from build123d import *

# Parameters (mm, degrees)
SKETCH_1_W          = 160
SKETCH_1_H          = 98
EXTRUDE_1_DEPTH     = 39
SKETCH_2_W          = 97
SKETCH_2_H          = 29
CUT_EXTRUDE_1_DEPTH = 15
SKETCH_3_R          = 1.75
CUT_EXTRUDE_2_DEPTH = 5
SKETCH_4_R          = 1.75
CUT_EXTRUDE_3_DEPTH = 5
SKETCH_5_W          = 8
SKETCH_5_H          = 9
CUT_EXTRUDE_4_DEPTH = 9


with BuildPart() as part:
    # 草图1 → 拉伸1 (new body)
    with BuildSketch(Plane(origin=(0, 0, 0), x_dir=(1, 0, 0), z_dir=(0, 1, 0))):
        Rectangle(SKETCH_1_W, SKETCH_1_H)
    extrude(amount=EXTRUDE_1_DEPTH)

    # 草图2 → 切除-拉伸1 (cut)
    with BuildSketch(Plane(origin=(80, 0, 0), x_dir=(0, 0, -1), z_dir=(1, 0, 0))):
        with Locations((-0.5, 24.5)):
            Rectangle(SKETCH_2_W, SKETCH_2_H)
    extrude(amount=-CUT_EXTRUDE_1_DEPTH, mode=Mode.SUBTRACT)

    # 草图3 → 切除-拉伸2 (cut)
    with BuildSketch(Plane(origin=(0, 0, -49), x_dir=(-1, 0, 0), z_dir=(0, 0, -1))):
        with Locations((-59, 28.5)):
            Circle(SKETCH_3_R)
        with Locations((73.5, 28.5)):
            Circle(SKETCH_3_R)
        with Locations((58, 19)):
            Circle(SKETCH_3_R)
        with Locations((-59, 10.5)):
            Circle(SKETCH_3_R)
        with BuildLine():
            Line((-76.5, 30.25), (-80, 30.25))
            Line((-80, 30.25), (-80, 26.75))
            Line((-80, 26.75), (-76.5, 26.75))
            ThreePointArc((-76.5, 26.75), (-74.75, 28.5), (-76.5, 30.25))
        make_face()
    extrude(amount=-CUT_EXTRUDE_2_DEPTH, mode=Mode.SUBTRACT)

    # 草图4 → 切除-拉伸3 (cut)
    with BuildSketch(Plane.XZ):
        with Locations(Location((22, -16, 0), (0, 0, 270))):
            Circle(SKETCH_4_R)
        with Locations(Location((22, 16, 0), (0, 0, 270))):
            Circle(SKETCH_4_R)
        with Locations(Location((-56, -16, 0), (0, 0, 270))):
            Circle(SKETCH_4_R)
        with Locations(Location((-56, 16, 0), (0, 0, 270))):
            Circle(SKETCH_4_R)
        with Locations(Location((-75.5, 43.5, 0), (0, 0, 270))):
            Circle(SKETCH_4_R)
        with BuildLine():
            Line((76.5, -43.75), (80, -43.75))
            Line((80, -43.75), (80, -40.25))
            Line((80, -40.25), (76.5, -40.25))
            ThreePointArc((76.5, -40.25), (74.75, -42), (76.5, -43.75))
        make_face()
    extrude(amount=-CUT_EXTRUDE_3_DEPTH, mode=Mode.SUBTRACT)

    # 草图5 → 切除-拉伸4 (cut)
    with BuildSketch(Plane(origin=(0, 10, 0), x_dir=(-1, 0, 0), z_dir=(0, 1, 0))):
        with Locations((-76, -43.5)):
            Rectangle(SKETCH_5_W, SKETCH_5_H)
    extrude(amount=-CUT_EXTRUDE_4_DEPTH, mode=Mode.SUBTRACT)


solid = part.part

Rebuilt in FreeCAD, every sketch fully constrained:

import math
import FreeCAD as App
import Part
import Sketcher
from FreeCAD import Vector

doc = App.newDocument("Part")
body = doc.addObject("PartDesign::Body", "Body")

sketch1 = doc.addObject("Sketcher::SketchObject", "Sketch")
body.addObject(sketch1)
sketch1.AttachmentSupport = (doc.XZ_Plane, [""])
sketch1.MapMode = "FlatFace"
sketch1.addGeometry([
    Part.LineSegment(Vector(-80, -49, 0), Vector(-80, 49, 0)),
    Part.LineSegment(Vector(-80, 49, 0), Vector(80, 49, 0)),
    Part.LineSegment(Vector(80, 49, 0), Vector(80, -49, 0)),
    Part.LineSegment(Vector(80, -49, 0), Vector(-80, -49, 0)),
], False)
sketch1.addConstraint([
    Sketcher.Constraint("Coincident", 0, 2, 1, 1),
    Sketcher.Constraint("Coincident", 1, 2, 2, 1),
    Sketcher.Constraint("Coincident", 2, 2, 3, 1),
    Sketcher.Constraint("Coincident", 3, 2, 0, 1),
    Sketcher.Constraint("Vertical", 0),
    Sketcher.Constraint("Horizontal", 1),
    Sketcher.Constraint("Vertical", 2),
    Sketcher.Constraint("Horizontal", 3),
    Sketcher.Constraint("Symmetric", 0, 2, 2, 2, -1, 1),
    Sketcher.Constraint("DistanceX", 1, 1, 1, 2, 160.0),
    Sketcher.Constraint("DistanceY", 0, 1, 0, 2, 98.0),
])
pad1 = doc.addObject("PartDesign::Pad", "Pad")
body.addObject(pad1)
pad1.Profile = sketch1
pad1.Length = 39
pad1.Reversed = True

sketch2 = doc.addObject("Sketcher::SketchObject", "Sketch001")
body.addObject(sketch2)
sketch2.AttachmentSupport = (doc.YZ_Plane, [""])
sketch2.MapMode = "FlatFace"
sketch2.AttachmentOffset = App.Placement(Vector(0, 0, 80), App.Rotation())
sketch2.addGeometry([
    Part.LineSegment(Vector(39, 49, 0), Vector(10, 49, 0)),
    Part.LineSegment(Vector(10, 49, 0), Vector(10, -48, 0)),
    Part.LineSegment(Vector(10, -48, 0), Vector(39, -48, 0)),
    Part.LineSegment(Vector(39, -48, 0), Vector(39, 49, 0)),
], False)
sketch2.addConstraint([
    Sketcher.Constraint("Coincident", 0, 2, 1, 1),
    Sketcher.Constraint("Coincident", 1, 2, 2, 1),
    Sketcher.Constraint("Coincident", 2, 2, 3, 1),
    Sketcher.Constraint("Coincident", 3, 2, 0, 1),
    Sketcher.Constraint("Horizontal", 0),
    Sketcher.Constraint("Vertical", 1),
    Sketcher.Constraint("Horizontal", 2),
    Sketcher.Constraint("Vertical", 3),
    Sketcher.Constraint("DistanceX", 0, 2, 0, 1, 29.0),
    Sketcher.Constraint("DistanceY", 1, 2, 1, 1, 97.0),
    Sketcher.Constraint("DistanceX", -1, 1, 0, 2, 10.0),
    Sketcher.Constraint("DistanceY", -1, 1, 0, 2, 49.0),
])
pocket1 = doc.addObject("PartDesign::Pocket", "Pocket")
body.addObject(pocket1)
pocket1.Profile = sketch2
pocket1.Length = 15

sketch3 = doc.addObject("Sketcher::SketchObject", "Sketch002")
body.addObject(sketch3)
sketch3.AttachmentSupport = (doc.XY_Plane, [""])
sketch3.MapMode = "FlatFace"
sketch3.AttachmentOffset = App.Placement(Vector(0, 0, -49), App.Rotation())
sketch3.addGeometry([
    Part.Circle(Vector(59, 28.5, 0), Vector(0, 0, 1), 1.8),
    Part.Circle(Vector(-73.5, 28.5, 0), Vector(0, 0, 1), 1.8),
    Part.Circle(Vector(-58, 19, 0), Vector(0, 0, 1), 1.8),
    Part.Circle(Vector(59, 10.5, 0), Vector(0, 0, 1), 1.8),
    Part.LineSegment(Vector(76.5, 30.2, 0), Vector(80, 30.2, 0)),
    Part.LineSegment(Vector(80, 30.2, 0), Vector(80, 26.8, 0)),
    Part.LineSegment(Vector(80, 26.8, 0), Vector(76.5, 26.8, 0)),
    Part.ArcOfCircle(Part.Circle(Vector(76.5, 28.5, 0), Vector(0, 0, 1), 1.8), math.radians(90), math.radians(270)),
], False)
sketch3.addConstraint([
    Sketcher.Constraint("Coincident", 4, 2, 5, 1),
    Sketcher.Constraint("Coincident", 5, 2, 6, 1),
    Sketcher.Constraint("Tangent", 6, 2, 7, 2),
    Sketcher.Constraint("Tangent", 7, 1, 4, 1),
    Sketcher.Constraint("Horizontal", 4),
    Sketcher.Constraint("Vertical", 5),
    Sketcher.Constraint("Horizontal", 6),
    Sketcher.Constraint("Equal", 0, 1),
    Sketcher.Constraint("Equal", 1, 2),
    Sketcher.Constraint("Equal", 2, 3),
    Sketcher.Constraint("Equal", 3, 7),
    Sketcher.Constraint("Horizontal", 0, 3, 1, 3),
    Sketcher.Constraint("Horizontal", 1, 3, 7, 3),
    Sketcher.Constraint("Vertical", 0, 3, 3, 3),
    Sketcher.Constraint("Equal", 6, 5),
    Sketcher.Constraint("Diameter", 0, 3.5),
    Sketcher.Constraint("DistanceX", -1, 1, 0, 3, 59.0),
    Sketcher.Constraint("DistanceX", 2, 3, -1, 1, 58.0),
    Sketcher.Constraint("DistanceY", -1, 1, 2, 3, 19.0),
    Sketcher.Constraint("DistanceX", -1, 1, 4, 2, 80.0),
    Sketcher.Constraint("DistanceY", 3, 3, 0, 3, 18.0),
    Sketcher.Constraint("DistanceX", 1, 3, 7, 3, 150.0),
    Sketcher.Constraint("DistanceY", -1, 1, 0, 3, 28.5),
])
pocket2 = doc.addObject("PartDesign::Pocket", "Pocket001")
body.addObject(pocket2)
pocket2.Profile = sketch3
pocket2.Length = 5
pocket2.Reversed = True

sketch4 = doc.addObject("Sketcher::SketchObject", "Sketch003")
body.addObject(sketch4)
sketch4.AttachmentSupport = (doc.XZ_Plane, [""])
sketch4.MapMode = "FlatFace"
sketch4.addGeometry([
    Part.Circle(Vector(22, -16, 0), Vector(0, 0, 1), 1.8),
    Part.Circle(Vector(22, 16, 0), Vector(0, 0, 1), 1.8),
    Part.Circle(Vector(-56, -16, 0), Vector(0, 0, 1), 1.8),
    Part.Circle(Vector(-56, 16, 0), Vector(0, 0, 1), 1.8),
    Part.Circle(Vector(-75.5, 43.5, 0), Vector(0, 0, 1), 1.8),
    Part.LineSegment(Vector(76.5, -43.8, 0), Vector(80, -43.8, 0)),
    Part.LineSegment(Vector(80, -43.8, 0), Vector(80, -40.2, 0)),
    Part.LineSegment(Vector(80, -40.2, 0), Vector(76.5, -40.2, 0)),
    Part.ArcOfCircle(Part.Circle(Vector(76.5, -42, 0), Vector(0, 0, 1), 1.8), math.radians(90), math.radians(270)),
], False)
sketch4.addConstraint([
    Sketcher.Constraint("Coincident", 5, 2, 6, 1),
    Sketcher.Constraint("Coincident", 6, 2, 7, 1),
    Sketcher.Constraint("Tangent", 7, 2, 8, 1),
    Sketcher.Constraint("Tangent", 8, 2, 5, 1),
    Sketcher.Constraint("Horizontal", 5),
    Sketcher.Constraint("Vertical", 6),
    Sketcher.Constraint("Horizontal", 7),
    Sketcher.Constraint("Equal", 0, 1),
    Sketcher.Constraint("Equal", 1, 2),
    Sketcher.Constraint("Equal", 2, 3),
    Sketcher.Constraint("Equal", 3, 4),
    Sketcher.Constraint("Equal", 4, 8),
    Sketcher.Constraint("Symmetric", 0, 3, 1, 3, -1),
    Sketcher.Constraint("Symmetric", 2, 3, 3, 3, -1),
    Sketcher.Constraint("Horizontal", 0, 3, 2, 3),
    Sketcher.Constraint("Equal", 7, 6),
    Sketcher.Constraint("Diameter", 0, 3.5),
    Sketcher.Constraint("DistanceX", -1, 1, 0, 3, 22.0),
    Sketcher.Constraint("DistanceY", 0, 3, -1, 1, 16.0),
    Sketcher.Constraint("DistanceX", 2, 3, -1, 1, 56.0),
    Sketcher.Constraint("DistanceY", 8, 3, -1, 1, 42.0),
    Sketcher.Constraint("DistanceX", -1, 1, 5, 2, 80.0),
    Sketcher.Constraint("DistanceX", 4, 3, 8, 3, 152.0),
    Sketcher.Constraint("DistanceY", -1, 1, 4, 3, 43.5),
])
pocket3 = doc.addObject("PartDesign::Pocket", "Pocket002")
body.addObject(pocket3)
pocket3.Profile = sketch4
pocket3.Length = 5

sketch5 = doc.addObject("Sketcher::SketchObject", "Sketch004")
body.addObject(sketch5)
sketch5.AttachmentSupport = (doc.XZ_Plane, [""])
sketch5.MapMode = "FlatFace"
sketch5.AttachmentOffset = App.Placement(Vector(0, 0, -10), App.Rotation())
sketch5.addGeometry([
    Part.LineSegment(Vector(80, -39, 0), Vector(80, -48, 0)),
    Part.LineSegment(Vector(80, -48, 0), Vector(72, -48, 0)),
    Part.LineSegment(Vector(72, -48, 0), Vector(72, -39, 0)),
    Part.LineSegment(Vector(72, -39, 0), Vector(80, -39, 0)),
], False)
sketch5.addConstraint([
    Sketcher.Constraint("Coincident", 0, 2, 1, 1),
    Sketcher.Constraint("Coincident", 1, 2, 2, 1),
    Sketcher.Constraint("Coincident", 2, 2, 3, 1),
    Sketcher.Constraint("Coincident", 3, 2, 0, 1),
    Sketcher.Constraint("Vertical", 0),
    Sketcher.Constraint("Horizontal", 1),
    Sketcher.Constraint("Vertical", 2),
    Sketcher.Constraint("Horizontal", 3),
    Sketcher.Constraint("DistanceX", 1, 2, 1, 1, 8.0),
    Sketcher.Constraint("DistanceY", 0, 2, 0, 1, 9.0),
    Sketcher.Constraint("DistanceX", -1, 1, 0, 2, 80.0),
    Sketcher.Constraint("DistanceY", 0, 2, -1, 1, 48.0),
])
pocket4 = doc.addObject("PartDesign::Pocket", "Pocket003")
body.addObject(pocket4)
pocket4.Profile = sketch5
pocket4.Length = 9
pocket4.Reversed = True

doc.recompute()
